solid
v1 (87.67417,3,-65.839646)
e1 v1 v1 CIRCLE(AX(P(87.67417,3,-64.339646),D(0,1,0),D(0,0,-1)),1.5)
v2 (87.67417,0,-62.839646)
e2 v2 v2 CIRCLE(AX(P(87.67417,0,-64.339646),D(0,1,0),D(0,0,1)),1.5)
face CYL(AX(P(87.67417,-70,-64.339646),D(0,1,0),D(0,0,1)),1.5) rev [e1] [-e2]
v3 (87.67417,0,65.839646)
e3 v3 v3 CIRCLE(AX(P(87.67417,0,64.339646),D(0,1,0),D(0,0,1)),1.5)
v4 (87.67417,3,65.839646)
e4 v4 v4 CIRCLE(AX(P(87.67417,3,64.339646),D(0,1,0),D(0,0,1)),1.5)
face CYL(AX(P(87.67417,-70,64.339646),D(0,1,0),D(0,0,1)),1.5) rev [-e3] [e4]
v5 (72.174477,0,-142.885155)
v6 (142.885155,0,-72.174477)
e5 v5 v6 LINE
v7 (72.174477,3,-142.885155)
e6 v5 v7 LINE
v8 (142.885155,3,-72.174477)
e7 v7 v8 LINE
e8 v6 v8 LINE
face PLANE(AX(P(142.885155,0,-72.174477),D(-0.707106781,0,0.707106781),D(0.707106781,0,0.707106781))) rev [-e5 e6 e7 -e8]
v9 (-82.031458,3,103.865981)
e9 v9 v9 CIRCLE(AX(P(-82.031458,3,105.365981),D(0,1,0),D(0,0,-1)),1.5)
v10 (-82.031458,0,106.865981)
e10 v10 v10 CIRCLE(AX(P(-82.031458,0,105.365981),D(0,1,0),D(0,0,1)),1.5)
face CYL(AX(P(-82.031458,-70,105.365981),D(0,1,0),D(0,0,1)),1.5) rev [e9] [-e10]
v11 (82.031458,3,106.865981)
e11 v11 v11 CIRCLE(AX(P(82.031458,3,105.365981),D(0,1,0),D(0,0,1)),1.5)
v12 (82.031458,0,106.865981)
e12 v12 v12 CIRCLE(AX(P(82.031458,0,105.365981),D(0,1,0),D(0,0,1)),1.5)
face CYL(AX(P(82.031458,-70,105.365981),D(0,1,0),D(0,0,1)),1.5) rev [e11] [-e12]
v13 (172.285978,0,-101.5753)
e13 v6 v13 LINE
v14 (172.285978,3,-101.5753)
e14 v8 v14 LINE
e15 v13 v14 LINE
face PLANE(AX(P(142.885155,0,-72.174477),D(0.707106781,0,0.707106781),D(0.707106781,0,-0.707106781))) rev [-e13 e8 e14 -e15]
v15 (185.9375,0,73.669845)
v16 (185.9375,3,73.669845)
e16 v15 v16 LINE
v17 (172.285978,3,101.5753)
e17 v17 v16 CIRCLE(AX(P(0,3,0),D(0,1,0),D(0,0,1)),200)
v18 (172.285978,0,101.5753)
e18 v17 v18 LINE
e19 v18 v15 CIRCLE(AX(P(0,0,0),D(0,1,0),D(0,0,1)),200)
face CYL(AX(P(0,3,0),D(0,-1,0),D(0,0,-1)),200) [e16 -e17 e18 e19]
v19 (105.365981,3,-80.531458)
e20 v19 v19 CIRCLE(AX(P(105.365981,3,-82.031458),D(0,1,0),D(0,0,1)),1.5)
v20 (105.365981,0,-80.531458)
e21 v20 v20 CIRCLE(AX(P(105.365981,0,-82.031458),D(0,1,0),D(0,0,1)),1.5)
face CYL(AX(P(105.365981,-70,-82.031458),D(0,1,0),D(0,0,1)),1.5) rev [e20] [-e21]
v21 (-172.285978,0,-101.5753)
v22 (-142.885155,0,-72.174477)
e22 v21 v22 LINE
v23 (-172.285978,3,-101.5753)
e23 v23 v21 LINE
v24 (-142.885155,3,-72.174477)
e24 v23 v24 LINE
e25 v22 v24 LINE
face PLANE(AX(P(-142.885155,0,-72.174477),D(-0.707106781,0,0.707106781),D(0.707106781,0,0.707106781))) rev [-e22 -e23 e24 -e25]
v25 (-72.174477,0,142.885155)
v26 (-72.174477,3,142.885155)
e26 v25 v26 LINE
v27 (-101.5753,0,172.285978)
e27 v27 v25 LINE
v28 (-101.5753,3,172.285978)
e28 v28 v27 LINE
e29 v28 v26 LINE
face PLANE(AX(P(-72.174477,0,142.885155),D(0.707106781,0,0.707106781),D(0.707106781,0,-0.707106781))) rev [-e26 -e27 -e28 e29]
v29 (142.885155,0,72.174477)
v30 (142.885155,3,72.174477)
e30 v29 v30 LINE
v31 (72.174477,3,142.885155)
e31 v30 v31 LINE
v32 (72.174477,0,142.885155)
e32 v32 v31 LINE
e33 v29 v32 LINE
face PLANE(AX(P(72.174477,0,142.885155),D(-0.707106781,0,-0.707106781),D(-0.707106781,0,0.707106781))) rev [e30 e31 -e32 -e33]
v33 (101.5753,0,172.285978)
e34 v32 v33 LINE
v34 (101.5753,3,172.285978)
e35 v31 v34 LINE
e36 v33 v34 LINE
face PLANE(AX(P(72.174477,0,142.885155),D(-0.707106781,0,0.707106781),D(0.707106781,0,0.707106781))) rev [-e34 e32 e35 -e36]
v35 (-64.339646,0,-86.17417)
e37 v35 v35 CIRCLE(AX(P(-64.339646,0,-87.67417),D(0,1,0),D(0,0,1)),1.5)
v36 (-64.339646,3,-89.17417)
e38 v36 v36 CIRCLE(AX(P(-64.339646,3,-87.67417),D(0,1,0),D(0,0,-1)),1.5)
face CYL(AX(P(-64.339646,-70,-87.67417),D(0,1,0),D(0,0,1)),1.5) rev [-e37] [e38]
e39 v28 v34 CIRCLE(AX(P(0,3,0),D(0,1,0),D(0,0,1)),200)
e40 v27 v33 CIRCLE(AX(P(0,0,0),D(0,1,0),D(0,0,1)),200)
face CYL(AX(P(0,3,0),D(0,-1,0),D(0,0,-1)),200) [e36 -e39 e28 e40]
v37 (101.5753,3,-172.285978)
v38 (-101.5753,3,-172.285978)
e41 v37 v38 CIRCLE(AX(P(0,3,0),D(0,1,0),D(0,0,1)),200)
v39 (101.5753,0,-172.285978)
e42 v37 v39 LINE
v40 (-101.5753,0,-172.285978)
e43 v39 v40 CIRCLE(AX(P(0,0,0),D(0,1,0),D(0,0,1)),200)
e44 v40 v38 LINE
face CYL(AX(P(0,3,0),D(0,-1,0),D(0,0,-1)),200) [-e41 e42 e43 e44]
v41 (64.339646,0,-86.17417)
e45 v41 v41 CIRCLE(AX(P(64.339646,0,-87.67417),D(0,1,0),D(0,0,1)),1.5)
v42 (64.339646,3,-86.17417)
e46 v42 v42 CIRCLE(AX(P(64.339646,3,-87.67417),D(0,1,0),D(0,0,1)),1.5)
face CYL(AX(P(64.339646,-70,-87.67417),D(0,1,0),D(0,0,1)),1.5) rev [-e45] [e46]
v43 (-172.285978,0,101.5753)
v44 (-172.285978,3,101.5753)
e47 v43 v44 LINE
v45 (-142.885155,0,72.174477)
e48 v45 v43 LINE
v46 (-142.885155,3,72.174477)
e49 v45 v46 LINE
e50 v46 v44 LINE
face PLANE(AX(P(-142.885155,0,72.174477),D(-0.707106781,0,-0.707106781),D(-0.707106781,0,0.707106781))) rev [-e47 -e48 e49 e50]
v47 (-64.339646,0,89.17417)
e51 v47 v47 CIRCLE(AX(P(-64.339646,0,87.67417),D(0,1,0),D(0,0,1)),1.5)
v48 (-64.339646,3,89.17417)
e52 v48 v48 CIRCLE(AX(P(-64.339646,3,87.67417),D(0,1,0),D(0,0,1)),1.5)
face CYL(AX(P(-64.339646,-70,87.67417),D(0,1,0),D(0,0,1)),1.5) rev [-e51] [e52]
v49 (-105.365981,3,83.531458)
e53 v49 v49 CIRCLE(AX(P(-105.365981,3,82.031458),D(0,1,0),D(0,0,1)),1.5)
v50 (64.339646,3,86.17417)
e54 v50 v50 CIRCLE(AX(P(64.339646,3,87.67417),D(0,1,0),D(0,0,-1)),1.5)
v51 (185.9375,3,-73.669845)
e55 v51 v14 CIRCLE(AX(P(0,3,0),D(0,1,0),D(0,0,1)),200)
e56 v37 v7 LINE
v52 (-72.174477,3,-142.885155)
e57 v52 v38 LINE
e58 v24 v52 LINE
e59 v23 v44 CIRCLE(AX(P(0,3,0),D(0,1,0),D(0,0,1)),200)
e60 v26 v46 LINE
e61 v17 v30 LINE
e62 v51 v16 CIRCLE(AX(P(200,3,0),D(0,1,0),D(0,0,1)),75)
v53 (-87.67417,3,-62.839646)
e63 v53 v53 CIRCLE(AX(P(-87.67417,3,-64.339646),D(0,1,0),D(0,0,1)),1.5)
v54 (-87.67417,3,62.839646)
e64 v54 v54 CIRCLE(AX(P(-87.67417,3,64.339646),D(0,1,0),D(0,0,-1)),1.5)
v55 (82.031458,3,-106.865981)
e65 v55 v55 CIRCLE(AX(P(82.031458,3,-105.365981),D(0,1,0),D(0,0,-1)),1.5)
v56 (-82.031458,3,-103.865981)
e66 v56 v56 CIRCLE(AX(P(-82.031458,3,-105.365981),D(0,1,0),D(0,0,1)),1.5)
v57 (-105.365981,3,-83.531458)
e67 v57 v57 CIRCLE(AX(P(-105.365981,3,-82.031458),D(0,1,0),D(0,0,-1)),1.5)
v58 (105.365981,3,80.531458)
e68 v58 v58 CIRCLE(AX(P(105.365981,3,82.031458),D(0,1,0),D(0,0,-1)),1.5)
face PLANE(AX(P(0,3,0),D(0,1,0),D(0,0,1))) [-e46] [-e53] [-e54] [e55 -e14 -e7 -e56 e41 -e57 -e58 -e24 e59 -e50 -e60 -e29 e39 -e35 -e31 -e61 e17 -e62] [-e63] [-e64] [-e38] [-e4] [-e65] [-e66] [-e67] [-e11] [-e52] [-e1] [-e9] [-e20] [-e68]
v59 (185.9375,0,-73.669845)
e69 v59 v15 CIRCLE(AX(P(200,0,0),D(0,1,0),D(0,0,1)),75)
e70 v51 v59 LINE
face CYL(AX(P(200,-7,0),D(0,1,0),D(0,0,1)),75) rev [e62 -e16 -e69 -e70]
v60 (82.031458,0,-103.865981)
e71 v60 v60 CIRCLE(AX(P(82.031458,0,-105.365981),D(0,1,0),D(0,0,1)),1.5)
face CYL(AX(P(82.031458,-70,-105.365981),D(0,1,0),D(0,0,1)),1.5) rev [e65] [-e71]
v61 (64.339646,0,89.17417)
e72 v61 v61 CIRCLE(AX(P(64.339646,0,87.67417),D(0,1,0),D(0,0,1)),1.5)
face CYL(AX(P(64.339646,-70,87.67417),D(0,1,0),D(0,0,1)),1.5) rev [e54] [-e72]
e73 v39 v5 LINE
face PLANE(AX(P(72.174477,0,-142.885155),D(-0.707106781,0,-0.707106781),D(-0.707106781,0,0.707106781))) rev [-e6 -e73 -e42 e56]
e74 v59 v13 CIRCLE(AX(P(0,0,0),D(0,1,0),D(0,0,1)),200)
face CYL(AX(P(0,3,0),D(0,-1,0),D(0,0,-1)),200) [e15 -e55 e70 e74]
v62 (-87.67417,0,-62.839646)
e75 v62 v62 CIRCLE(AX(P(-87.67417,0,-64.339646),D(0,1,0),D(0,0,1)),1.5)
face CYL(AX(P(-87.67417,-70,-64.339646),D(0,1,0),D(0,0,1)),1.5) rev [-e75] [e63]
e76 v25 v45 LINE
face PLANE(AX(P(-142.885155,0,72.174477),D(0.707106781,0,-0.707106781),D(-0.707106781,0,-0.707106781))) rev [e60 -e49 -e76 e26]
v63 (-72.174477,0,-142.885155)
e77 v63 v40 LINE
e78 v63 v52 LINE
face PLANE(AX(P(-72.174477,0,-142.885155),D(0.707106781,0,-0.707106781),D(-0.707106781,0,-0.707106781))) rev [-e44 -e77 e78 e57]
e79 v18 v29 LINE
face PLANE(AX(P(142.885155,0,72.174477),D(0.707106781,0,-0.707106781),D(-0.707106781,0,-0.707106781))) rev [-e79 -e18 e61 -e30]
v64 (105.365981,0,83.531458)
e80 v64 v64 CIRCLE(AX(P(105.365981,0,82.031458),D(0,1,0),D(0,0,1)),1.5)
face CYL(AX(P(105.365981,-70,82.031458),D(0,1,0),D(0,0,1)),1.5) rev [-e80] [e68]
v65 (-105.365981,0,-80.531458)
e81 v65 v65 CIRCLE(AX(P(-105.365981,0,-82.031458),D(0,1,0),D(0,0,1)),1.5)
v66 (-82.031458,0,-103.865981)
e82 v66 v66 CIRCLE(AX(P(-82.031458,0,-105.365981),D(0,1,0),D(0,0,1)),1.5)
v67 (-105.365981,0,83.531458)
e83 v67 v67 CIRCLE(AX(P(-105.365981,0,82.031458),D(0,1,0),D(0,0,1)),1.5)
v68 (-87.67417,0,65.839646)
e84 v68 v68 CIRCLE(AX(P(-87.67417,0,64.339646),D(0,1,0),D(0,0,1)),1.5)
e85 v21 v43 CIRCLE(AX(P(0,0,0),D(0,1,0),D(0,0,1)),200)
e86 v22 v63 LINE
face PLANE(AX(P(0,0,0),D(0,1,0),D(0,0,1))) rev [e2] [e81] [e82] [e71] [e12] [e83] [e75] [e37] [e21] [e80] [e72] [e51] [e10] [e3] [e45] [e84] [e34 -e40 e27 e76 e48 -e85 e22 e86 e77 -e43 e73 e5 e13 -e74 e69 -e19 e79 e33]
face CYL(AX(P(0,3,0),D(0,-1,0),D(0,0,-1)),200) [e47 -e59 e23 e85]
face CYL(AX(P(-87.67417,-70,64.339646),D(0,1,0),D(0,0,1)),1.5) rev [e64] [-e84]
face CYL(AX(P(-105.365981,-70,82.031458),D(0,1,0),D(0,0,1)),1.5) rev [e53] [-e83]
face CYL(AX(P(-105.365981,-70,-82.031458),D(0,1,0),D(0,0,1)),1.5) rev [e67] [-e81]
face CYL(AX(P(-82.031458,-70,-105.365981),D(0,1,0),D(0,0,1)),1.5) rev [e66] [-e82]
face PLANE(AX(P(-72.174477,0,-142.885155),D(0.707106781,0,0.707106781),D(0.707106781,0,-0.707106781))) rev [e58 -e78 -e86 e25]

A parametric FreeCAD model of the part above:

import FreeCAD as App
import Part
import Sketcher
from FreeCAD import Vector

doc = App.newDocument("Part")
body = doc.addObject("PartDesign::Body", "Body")

sketch1 = body.newObject("Sketcher::SketchObject", "Sketch")
sketch1.AttachmentSupport = (doc.getObject("XZ_Plane"), [""])
sketch1.MapMode = "FlatFace"
sketch1.addGeometry(Part.Circle(Vector(0, 0, 0), Vector(0, 0, 1), 200), False)
sketch1.addConstraint(Sketcher.Constraint("Coincident", 0, 3, -1, 1))
sketch1.addConstraint(Sketcher.Constraint("Diameter", 0, 400.0))
pad1 = body.newObject("PartDesign::Pad", "Pad")
pad1.Profile = sketch1
pad1.Length = 3
pad1.Reversed = True

sketch2 = body.newObject("Sketcher::SketchObject", "Sketch001")
sketch2.AttachmentSupport = (doc.getObject("XZ_Plane"), [""])
sketch2.MapMode = "FlatFace"
sketch2.AttachmentOffset = App.Placement(Vector(0, 0, -3), App.Rotation())
sketch2.addGeometry(Part.LineSegment(Vector(-72, 143, 0), Vector(-143, 72, 0)), False)
sketch2.addGeometry(Part.LineSegment(Vector(-143, 72, 0), Vector(-227, 156, 0)), False)
sketch2.addGeometry(Part.LineSegment(Vector(-227, 156, 0), Vector(-156, 227, 0)), False)
sketch2.addGeometry(Part.LineSegment(Vector(-156, 227, 0), Vector(-72, 143, 0)), False)
sketch2.addGeometry(Part.LineSegment(Vector(-143, -72, 0), Vector(-72, -143, 0)), False)
sketch2.addGeometry(Part.LineSegment(Vector(-72, -143, 0), Vector(-156, -227, 0)), False)
sketch2.addGeometry(Part.LineSegment(Vector(-156, -227, 0), Vector(-227, -156, 0)), False)
sketch2.addGeometry(Part.LineSegment(Vector(-227, -156, 0), Vector(-143, -72, 0)), False)
sketch2.addGeometry(Part.LineSegment(Vector(72, -143, 0), Vector(143, -72, 0)), False)
sketch2.addGeometry(Part.LineSegment(Vector(143, -72, 0), Vector(227, -156, 0)), False)
sketch2.addGeometry(Part.LineSegment(Vector(227, -156, 0), Vector(156, -227, 0)), False)
sketch2.addGeometry(Part.LineSegment(Vector(156, -227, 0), Vector(72, -143, 0)), False)
sketch2.addGeometry(Part.LineSegment(Vector(143, 72, 0), Vector(72, 143, 0)), False)
sketch2.addGeometry(Part.LineSegment(Vector(72, 143, 0), Vector(156, 227, 0)), False)
sketch2.addGeometry(Part.LineSegment(Vector(156, 227, 0), Vector(227, 156, 0)), False)
sketch2.addGeometry(Part.LineSegment(Vector(227, 156, 0), Vector(143, 72, 0)), False)
sketch2.addConstraint(Sketcher.Constraint("Coincident", 0, 2, 1, 1))
sketch2.addConstraint(Sketcher.Constraint("Coincident", 1, 2, 2, 1))
sketch2.addConstraint(Sketcher.Constraint("Coincident", 2, 2, 3, 1))
sketch2.addConstraint(Sketcher.Constraint("Coincident", 3, 2, 0, 1))
sketch2.addConstraint(Sketcher.Constraint("Coincident", 4, 2, 5, 1))
sketch2.addConstraint(Sketcher.Constraint("Coincident", 5, 2, 6, 1))
sketch2.addConstraint(Sketcher.Constraint("Coincident", 6, 2, 7, 1))
sketch2.addConstraint(Sketcher.Constraint("Coincident", 7, 2, 4, 1))
sketch2.addConstraint(Sketcher.Constraint("Coincident", 8, 2, 9, 1))
sketch2.addConstraint(Sketcher.Constraint("Coincident", 9, 2, 10, 1))
sketch2.addConstraint(Sketcher.Constraint("Coincident", 10, 2, 11, 1))
sketch2.addConstraint(Sketcher.Constraint("Coincident", 11, 2, 8, 1))
sketch2.addConstraint(Sketcher.Constraint("Coincident", 12, 2, 13, 1))
sketch2.addConstraint(Sketcher.Constraint("Coincident", 13, 2, 14, 1))
sketch2.addConstraint(Sketcher.Constraint("Coincident", 14, 2, 15, 1))
sketch2.addConstraint(Sketcher.Constraint("Coincident", 15, 2, 12, 1))
sketch2.addConstraint(Sketcher.Constraint("Symmetric", 0, 2, 8, 2, -1, 1))
sketch2.addConstraint(Sketcher.Constraint("Symmetric", 1, 2, 9, 2, -1, 1))
sketch2.addConstraint(Sketcher.Constraint("Symmetric", 2, 2, 10, 2, -1, 1))
sketch2.addConstraint(Sketcher.Constraint("Symmetric", 3, 2, 11, 2, -1, 1))
sketch2.addConstraint(Sketcher.Constraint("Symmetric", 4, 2, 12, 2, -1, 1))
sketch2.addConstraint(Sketcher.Constraint("Symmetric", 5, 2, 13, 2, -1, 1))
sketch2.addConstraint(Sketcher.Constraint("Symmetric", 6, 2, 14, 2, -1, 1))
sketch2.addConstraint(Sketcher.Constraint("Symmetric", 7, 2, 15, 2, -1, 1))
sketch2.addConstraint(Sketcher.Constraint("Symmetric", 7, 2, 8, 2, -2))
sketch2.addConstraint(Sketcher.Constraint("Symmetric", 6, 2, 9, 2, -2))
sketch2.addConstraint(Sketcher.Constraint("Symmetric", 5, 2, 10, 2, -2))
sketch2.addConstraint(Sketcher.Constraint("Symmetric", 4, 2, 11, 2, -2))
sketch2.addConstraint(Sketcher.Constraint("Perpendicular", 0, 1))
sketch2.addConstraint(Sketcher.Constraint("Perpendicular", 1, 2))
sketch2.addConstraint(Sketcher.Constraint("Perpendicular", 2, 3))
sketch2.addConstraint(Sketcher.Constraint("Parallel", 3, 4))
sketch2.addConstraint(Sketcher.Constraint("Distance", 0, 100.0))
sketch2.addConstraint(Sketcher.Constraint("Distance", 1, 118.6448))
sketch2.addConstraint(Sketcher.Constraint("DistanceY", -1, 1, 1, 2, 156.06902))
sketch2.addConstraint(Sketcher.Constraint("DistanceX", 2, 2, -1, 1, 156.06902))
pocket1 = body.newObject("PartDesign::Pocket", "Pocket")
pocket1.Profile = sketch2
pocket1.Length = 3
pocket1.Reversed = True

sketch3 = body.newObject("Sketcher::SketchObject", "Sketch002")
sketch3.AttachmentSupport = (doc.getObject("XZ_Plane"), [""])
sketch3.MapMode = "FlatFace"
sketch3.AttachmentOffset = App.Placement(Vector(0, 0, -3), App.Rotation())
sketch3.addGeometry(Part.Circle(Vector(200, 0, 0), Vector(0, 0, 1), 75), False)
sketch3.addConstraint(Sketcher.Constraint("PointOnObject", 0, 3, -1))
sketch3.addConstraint(Sketcher.Constraint("Diameter", 0, 150.0))
sketch3.addConstraint(Sketcher.Constraint("DistanceX", -1, 1, 0, 3, 200.0))
pocket2 = body.newObject("PartDesign::Pocket", "Pocket001")
pocket2.Profile = sketch3
pocket2.Length = 10
pocket2.Reversed = True

sketch4 = body.newObject("Sketcher::SketchObject", "Sketch003")
sketch4.AttachmentSupport = (doc.getObject("XZ_Plane"), [""])
sketch4.MapMode = "FlatFace"
sketch4.AttachmentOffset = App.Placement(Vector(0, 0, -3), App.Rotation())
sketch4.addGeometry(Part.Circle(Vector(82, 105.4, 0), Vector(0, 0, 1), 1.5), False)
sketch4.addGeometry(Part.Circle(Vector(64.3, 87.7, 0), Vector(0, 0, 1), 1.5), False)
sketch4.addGeometry(Part.Circle(Vector(105.4, 82, 0), Vector(0, 0, 1), 1.5), False)
sketch4.addGeometry(Part.Circle(Vector(87.7, 64.3, 0), Vector(0, 0, 1), 1.5), False)
sketch4.addGeometry(Part.Circle(Vector(-87.7, 64.3, 0), Vector(0, 0, 1), 1.5), False)
sketch4.addGeometry(Part.Circle(Vector(-105.4, 82, 0), Vector(0, 0, 1), 1.5), False)
sketch4.addGeometry(Part.Circle(Vector(-82, 105.4, 0), Vector(0, 0, 1), 1.5), False)
sketch4.addGeometry(Part.Circle(Vector(-64.3, 87.7, 0), Vector(0, 0, 1), 1.5), False)
sketch4.addGeometry(Part.Circle(Vector(-64.3, -87.7, 0), Vector(0, 0, 1), 1.5), False)
sketch4.addGeometry(Part.Circle(Vector(-82, -105.4, 0), Vector(0, 0, 1), 1.5), False)
sketch4.addGeometry(Part.Circle(Vector(-105.4, -82, 0), Vector(0, 0, 1), 1.5), False)
sketch4.addGeometry(Part.Circle(Vector(-87.7, -64.3, 0), Vector(0, 0, 1), 1.5), False)
sketch4.addGeometry(Part.Circle(Vector(87.7, -64.3, 0), Vector(0, 0, 1), 1.5), False)
sketch4.addGeometry(Part.Circle(Vector(105.4, -82, 0), Vector(0, 0, 1), 1.5), False)
sketch4.addGeometry(Part.Circle(Vector(82, -105.4, 0), Vector(0, 0, 1), 1.5), False)
sketch4.addGeometry(Part.Circle(Vector(64.3, -87.7, 0), Vector(0, 0, 1), 1.5), False)
sketch4.addConstraint(Sketcher.Constraint("Equal", 0, 1))
sketch4.addConstraint(Sketcher.Constraint("Equal", 1, 2))
sketch4.addConstraint(Sketcher.Constraint("Equal", 2, 3))
sketch4.addConstraint(Sketcher.Constraint("Equal", 3, 4))
sketch4.addConstraint(Sketcher.Constraint("Equal", 4, 5))
sketch4.addConstraint(Sketcher.Constraint("Equal", 5, 6))
sketch4.addConstraint(Sketcher.Constraint("Equal", 6, 7))
sketch4.addConstraint(Sketcher.Constraint("Equal", 7, 8))
sketch4.addConstraint(Sketcher.Constraint("Equal", 8, 9))
sketch4.addConstraint(Sketcher.Constraint("Equal", 9, 10))
sketch4.addConstraint(Sketcher.Constraint("Equal", 10, 11))
sketch4.addConstraint(Sketcher.Constraint("Equal", 11, 12))
sketch4.addConstraint(Sketcher.Constraint("Equal", 12, 13))
sketch4.addConstraint(Sketcher.Constraint("Equal", 13, 14))
sketch4.addConstraint(Sketcher.Constraint("Equal", 14, 15))
sketch4.addConstraint(Sketcher.Constraint("Symmetric", 1, 3, 8, 3, -1, 1))
sketch4.addConstraint(Sketcher.Constraint("Symmetric", 0, 3, 9, 3, -1, 1))
sketch4.addConstraint(Sketcher.Constraint("Symmetric", 2, 3, 10, 3, -1, 1))
sketch4.addConstraint(Sketcher.Constraint("Symmetric", 3, 3, 11, 3, -1, 1))
sketch4.addConstraint(Sketcher.Constraint("Symmetric", 4, 3, 12, 3, -1, 1))
sketch4.addConstraint(Sketcher.Constraint("Symmetric", 5, 3, 13, 3, -1, 1))
sketch4.addConstraint(Sketcher.Constraint("Symmetric", 6, 3, 14, 3, -1, 1))
sketch4.addConstraint(Sketcher.Constraint("Symmetric", 7, 3, 15, 3, -1, 1))
sketch4.addConstraint(Sketcher.Constraint("Symmetric", 3, 3, 4, 3, -2))
sketch4.addConstraint(Sketcher.Constraint("Symmetric", 2, 3, 5, 3, -2))
sketch4.addConstraint(Sketcher.Constraint("Symmetric", 0, 3, 6, 3, -2))
sketch4.addConstraint(Sketcher.Constraint("Symmetric", 1, 3, 7, 3, -2))
sketch4.addConstraint(Sketcher.Constraint("Diameter", 0, 3.0))
sketch4.addConstraint(Sketcher.Constraint("DistanceY", -1, 1, 0, 3, 105.365981))
sketch4.addConstraint(Sketcher.Constraint("DistanceY", -1, 1, 1, 3, 87.67417))
sketch4.addConstraint(Sketcher.Constraint("DistanceX", -1, 1, 2, 3, 105.365981))
sketch4.addConstraint(Sketcher.Constraint("DistanceX", -1, 1, 3, 3, 87.67417))
sketch4.addConstraint(Sketcher.Constraint("DistanceX", 1, 3, 0, 3, 17.691812))
sketch4.addConstraint(Sketcher.Constraint("DistanceY", 3, 3, 2, 3, 17.691812))
sketch4.addConstraint(Sketcher.Constraint("DistanceX", 5, 3, 0, 3, 187.397439))
sketch4.addConstraint(Sketcher.Constraint("DistanceY", 9, 3, 5, 3, 187.397439))
pocket3 = body.newObject("PartDesign::Pocket", "Pocket002")
pocket3.Profile = sketch4
pocket3.Length = 73
pocket3.Reversed = True

doc.recompute()
